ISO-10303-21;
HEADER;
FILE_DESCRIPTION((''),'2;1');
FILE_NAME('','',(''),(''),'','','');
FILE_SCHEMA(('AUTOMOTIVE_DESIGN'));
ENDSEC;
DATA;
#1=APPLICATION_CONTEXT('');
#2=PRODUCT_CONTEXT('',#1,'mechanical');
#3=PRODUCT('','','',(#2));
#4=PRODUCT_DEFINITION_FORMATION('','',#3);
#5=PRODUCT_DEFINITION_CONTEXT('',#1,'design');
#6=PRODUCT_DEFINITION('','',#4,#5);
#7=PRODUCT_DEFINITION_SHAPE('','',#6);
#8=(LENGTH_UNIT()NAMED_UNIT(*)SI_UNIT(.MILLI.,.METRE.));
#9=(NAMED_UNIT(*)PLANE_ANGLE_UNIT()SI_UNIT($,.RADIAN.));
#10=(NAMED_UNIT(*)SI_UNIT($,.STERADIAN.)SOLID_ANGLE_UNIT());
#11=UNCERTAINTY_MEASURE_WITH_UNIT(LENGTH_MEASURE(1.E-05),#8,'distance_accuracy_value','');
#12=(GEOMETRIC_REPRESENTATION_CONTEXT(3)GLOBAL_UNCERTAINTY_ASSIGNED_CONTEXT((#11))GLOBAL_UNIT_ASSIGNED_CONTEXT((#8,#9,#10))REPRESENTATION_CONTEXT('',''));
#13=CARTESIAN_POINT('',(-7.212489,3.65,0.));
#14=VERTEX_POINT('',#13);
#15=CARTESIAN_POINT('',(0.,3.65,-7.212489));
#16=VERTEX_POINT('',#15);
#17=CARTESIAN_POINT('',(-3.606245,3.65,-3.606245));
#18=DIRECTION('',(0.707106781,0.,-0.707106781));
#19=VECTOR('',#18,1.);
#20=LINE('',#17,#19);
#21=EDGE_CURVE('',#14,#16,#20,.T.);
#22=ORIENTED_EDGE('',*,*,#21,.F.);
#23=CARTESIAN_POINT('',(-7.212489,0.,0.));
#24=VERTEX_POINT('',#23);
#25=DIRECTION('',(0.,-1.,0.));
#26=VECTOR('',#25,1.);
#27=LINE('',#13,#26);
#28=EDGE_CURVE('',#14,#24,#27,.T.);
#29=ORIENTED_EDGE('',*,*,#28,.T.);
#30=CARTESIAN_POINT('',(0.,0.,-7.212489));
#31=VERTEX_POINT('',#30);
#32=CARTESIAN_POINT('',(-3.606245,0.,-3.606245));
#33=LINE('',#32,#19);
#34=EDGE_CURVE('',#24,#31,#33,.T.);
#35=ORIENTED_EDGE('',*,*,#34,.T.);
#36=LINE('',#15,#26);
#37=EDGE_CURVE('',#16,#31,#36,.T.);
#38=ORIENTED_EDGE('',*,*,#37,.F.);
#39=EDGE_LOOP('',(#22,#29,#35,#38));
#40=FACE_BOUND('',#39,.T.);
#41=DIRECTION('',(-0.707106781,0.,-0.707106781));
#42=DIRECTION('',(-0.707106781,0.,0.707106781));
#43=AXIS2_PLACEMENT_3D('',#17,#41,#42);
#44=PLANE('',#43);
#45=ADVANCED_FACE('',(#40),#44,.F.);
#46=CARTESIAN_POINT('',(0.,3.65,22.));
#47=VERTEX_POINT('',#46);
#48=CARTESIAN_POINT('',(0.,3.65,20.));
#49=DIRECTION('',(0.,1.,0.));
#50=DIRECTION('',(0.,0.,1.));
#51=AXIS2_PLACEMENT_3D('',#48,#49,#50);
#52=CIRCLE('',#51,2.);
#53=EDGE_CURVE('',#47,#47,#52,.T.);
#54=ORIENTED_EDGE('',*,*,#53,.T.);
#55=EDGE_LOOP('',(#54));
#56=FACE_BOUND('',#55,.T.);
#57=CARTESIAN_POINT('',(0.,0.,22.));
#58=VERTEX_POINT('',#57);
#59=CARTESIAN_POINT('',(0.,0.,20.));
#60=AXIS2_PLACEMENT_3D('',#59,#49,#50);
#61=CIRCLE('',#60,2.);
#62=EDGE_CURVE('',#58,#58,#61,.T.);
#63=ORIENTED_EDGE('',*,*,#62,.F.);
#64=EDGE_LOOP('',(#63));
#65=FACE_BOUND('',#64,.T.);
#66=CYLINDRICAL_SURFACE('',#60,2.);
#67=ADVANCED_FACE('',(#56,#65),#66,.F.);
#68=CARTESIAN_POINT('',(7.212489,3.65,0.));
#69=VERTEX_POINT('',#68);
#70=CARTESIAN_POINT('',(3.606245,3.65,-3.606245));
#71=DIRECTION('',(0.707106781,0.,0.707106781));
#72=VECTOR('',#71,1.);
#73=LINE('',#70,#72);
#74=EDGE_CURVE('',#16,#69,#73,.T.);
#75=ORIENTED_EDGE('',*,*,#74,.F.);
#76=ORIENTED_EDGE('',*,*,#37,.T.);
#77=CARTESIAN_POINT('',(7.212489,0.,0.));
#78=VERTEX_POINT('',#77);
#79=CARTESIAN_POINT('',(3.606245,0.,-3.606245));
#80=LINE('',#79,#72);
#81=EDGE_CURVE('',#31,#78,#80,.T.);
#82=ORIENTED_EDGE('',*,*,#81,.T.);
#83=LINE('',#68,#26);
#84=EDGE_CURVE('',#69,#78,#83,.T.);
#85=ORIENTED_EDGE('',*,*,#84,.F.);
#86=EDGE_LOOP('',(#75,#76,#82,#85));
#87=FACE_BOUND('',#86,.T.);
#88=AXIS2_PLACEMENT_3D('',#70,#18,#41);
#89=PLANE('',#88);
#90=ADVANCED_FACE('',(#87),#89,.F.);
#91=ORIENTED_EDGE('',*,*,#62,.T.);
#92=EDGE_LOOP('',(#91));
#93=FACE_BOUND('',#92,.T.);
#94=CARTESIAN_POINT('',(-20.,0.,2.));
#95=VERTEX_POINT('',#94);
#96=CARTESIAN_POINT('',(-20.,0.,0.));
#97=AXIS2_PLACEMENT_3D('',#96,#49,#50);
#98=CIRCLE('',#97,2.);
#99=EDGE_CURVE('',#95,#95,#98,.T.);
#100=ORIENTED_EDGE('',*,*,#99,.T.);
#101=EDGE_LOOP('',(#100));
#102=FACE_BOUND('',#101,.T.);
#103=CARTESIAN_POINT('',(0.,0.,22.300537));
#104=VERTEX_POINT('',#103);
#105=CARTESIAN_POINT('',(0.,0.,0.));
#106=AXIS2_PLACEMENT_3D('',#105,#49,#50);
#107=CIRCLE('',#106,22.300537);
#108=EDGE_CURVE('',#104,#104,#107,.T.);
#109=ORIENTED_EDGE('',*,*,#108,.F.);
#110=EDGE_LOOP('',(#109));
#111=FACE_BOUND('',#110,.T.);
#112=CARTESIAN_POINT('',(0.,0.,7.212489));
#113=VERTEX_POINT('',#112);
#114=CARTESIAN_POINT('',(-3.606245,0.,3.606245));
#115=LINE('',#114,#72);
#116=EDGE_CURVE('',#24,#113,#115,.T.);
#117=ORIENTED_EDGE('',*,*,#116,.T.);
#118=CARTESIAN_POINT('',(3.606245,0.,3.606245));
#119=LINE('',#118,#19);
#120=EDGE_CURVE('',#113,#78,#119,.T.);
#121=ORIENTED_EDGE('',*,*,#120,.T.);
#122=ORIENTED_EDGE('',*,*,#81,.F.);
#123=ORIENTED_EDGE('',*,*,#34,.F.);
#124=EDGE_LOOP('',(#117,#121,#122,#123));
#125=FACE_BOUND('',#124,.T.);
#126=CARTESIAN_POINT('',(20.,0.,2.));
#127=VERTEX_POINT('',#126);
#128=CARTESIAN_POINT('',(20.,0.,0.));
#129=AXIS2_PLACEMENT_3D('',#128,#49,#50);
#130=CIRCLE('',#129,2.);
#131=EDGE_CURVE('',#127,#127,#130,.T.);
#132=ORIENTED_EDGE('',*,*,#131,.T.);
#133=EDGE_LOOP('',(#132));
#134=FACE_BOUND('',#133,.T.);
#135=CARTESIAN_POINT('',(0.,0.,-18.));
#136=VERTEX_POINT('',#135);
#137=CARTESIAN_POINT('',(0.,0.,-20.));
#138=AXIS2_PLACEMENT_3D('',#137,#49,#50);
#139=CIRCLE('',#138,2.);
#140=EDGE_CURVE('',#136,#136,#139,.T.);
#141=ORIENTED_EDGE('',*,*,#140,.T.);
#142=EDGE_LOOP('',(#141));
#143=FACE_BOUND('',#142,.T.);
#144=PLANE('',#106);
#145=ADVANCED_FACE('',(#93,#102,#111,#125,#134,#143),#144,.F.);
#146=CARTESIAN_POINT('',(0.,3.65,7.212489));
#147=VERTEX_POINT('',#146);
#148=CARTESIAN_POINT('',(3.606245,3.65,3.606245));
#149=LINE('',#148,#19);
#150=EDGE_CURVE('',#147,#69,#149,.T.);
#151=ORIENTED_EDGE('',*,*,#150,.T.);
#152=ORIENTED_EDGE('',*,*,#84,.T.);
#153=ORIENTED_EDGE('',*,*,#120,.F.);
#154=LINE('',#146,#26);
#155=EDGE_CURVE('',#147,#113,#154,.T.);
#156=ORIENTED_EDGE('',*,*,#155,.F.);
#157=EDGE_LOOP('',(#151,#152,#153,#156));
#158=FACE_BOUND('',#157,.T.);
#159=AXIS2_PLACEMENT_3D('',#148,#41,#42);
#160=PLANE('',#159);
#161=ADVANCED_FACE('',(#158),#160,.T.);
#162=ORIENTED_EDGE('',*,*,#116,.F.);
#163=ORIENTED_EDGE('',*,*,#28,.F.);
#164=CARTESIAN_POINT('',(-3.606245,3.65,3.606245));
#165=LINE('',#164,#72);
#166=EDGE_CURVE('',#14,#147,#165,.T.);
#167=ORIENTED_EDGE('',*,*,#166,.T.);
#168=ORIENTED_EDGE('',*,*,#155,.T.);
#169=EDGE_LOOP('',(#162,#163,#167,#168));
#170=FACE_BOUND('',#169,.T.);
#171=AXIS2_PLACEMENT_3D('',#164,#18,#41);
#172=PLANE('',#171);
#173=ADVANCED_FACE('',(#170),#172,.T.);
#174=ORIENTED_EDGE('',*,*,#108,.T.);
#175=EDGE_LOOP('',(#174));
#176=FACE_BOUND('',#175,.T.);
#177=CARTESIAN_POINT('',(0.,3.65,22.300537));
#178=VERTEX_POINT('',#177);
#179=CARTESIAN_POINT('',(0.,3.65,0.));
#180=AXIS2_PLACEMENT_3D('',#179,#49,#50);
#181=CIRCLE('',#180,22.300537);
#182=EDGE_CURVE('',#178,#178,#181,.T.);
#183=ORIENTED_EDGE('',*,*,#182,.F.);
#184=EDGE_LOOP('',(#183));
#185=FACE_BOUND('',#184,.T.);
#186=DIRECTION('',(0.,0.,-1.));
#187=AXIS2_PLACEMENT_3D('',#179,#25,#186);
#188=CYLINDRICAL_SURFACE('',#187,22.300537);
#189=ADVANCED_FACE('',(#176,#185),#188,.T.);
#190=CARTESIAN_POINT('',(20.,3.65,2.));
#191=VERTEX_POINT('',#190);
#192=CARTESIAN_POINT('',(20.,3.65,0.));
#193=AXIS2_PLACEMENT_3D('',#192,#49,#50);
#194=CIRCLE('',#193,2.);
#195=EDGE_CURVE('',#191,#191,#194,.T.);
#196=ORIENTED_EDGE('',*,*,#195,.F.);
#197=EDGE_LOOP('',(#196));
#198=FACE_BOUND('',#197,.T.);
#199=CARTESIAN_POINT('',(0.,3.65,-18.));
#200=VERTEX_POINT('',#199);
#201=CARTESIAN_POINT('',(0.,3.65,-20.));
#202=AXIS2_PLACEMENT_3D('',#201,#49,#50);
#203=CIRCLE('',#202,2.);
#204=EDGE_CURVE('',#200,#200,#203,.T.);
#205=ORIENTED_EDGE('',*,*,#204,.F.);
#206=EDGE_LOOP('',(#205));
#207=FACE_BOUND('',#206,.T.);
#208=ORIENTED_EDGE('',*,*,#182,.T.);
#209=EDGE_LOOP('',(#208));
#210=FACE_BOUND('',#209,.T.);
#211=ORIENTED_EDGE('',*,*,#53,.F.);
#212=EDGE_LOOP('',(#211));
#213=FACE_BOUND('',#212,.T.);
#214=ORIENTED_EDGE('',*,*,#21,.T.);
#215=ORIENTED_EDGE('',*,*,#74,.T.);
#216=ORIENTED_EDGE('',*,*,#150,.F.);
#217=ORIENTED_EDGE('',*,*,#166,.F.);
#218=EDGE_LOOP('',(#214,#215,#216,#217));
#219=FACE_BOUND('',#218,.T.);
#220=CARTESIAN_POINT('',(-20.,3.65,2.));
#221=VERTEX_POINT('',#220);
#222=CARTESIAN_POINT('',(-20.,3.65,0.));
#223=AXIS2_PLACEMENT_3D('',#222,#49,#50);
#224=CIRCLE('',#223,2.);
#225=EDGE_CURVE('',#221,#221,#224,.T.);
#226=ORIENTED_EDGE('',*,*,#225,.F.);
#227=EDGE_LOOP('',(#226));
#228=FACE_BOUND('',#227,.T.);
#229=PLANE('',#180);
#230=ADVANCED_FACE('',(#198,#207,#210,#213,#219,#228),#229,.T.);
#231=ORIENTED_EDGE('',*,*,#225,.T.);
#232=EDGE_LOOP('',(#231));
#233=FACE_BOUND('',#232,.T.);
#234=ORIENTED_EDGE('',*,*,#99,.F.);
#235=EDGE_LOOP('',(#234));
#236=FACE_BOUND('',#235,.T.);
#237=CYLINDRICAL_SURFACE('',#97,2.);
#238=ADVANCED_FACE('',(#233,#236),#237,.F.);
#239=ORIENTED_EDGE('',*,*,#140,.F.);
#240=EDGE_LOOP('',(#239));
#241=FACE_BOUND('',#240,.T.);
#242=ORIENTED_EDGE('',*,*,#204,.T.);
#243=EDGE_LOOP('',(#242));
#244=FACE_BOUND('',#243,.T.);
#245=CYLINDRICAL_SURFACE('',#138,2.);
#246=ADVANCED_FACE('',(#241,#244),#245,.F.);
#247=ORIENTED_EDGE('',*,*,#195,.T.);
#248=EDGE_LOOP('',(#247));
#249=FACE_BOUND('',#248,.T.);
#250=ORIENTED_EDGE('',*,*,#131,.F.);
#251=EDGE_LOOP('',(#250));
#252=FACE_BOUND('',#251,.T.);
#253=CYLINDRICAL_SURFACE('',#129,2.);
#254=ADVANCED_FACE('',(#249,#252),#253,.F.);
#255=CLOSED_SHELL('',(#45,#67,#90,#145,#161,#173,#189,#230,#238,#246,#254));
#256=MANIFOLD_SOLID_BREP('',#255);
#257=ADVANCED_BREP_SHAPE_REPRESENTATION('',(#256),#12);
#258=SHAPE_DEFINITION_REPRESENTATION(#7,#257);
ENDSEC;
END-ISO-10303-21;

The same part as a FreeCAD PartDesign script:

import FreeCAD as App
import Part
import Sketcher


def add_polygon(sketch, points):
    """Adds a closed chain of lines whose ends are joined by coincident constraints."""
    first, n = sketch.GeometryCount, len(points)
    for a, b in zip(points, points[1:] + points[:1]):
        sketch.addGeometry(Part.LineSegment(App.Vector(*a, 0), App.Vector(*b, 0)), False)
    for i in range(n):
        sketch.addConstraint(Sketcher.Constraint("Coincident", first + i, 2, first + (i + 1) % n, 1))

doc = App.newDocument("Part")
body = doc.addObject("PartDesign::Body", "Body")

# Sketch on XZ plane
sketch1 = body.newObject("Sketcher::SketchObject", "Sketch")
sketch1.AttachmentSupport = (doc.getObject("XZ_Plane"), [""])
sketch1.MapMode = "FlatFace"
sketch1.addGeometry(Part.Circle(App.Vector(0, 0, 0), App.Vector(0, 0, 1), 22), False)  # 0
add_polygon(sketch1, [(0, 7), (-7, 0), (0, -7), (7, 0)])  # lines 1-4
sketch1.addConstraint([
    Sketcher.Constraint("Coincident", 0, 3, -1, 1),
    Sketcher.Constraint("Symmetric", 1, 2, 3, 2, -1, 1),
    Sketcher.Constraint("Symmetric", 2, 2, 4, 2, -1, 1),
    Sketcher.Constraint("PointOnObject", 1, 2, -1),
    Sketcher.Constraint("PointOnObject", 2, 2, -2),
    Sketcher.Constraint("Perpendicular", 1, 2),
    Sketcher.Constraint("Distance", 1, 10.2),
    Sketcher.Constraint("Diameter", 0, 44.601073),
])
pad1 = body.newObject("PartDesign::Pad", "Pad")
pad1.Profile = sketch1
pad1.Length = 3.65
pad1.Reversed = True

# Sketch on XZ plane
sketch2 = body.newObject("Sketcher::SketchObject", "Sketch001")
sketch2.AttachmentSupport = (doc.getObject("XZ_Plane"), [""])
sketch2.MapMode = "FlatFace"
sketch2.AttachmentOffset = App.Placement(App.Vector(0, 0, -3.65), App.Rotation())
sketch2.addGeometry([
    Part.Circle(App.Vector(0, -20, 0), App.Vector(0, 0, 1), 2),
    Part.Circle(App.Vector(20, 0, 0), App.Vector(0, 0, 1), 2),
    Part.Circle(App.Vector(0, 20, 0), App.Vector(0, 0, 1), 2),
    Part.Circle(App.Vector(-20, 0, 0), App.Vector(0, 0, 1), 2),
], False)
sketch2.addConstraint([
    Sketcher.Constraint("Equal", 0, 1),
    Sketcher.Constraint("Equal", 1, 2),
    Sketcher.Constraint("Equal", 2, 3),
    Sketcher.Constraint("Symmetric", 0, 3, 2, 3, -1, 1),
    Sketcher.Constraint("Symmetric", 1, 3, 3, 3, -1, 1),
    Sketcher.Constraint("PointOnObject", 0, 3, -2),
    Sketcher.Constraint("PointOnObject", 1, 3, -1),
    Sketcher.Constraint("Diameter", 0, 4.0),
    Sketcher.Constraint("DistanceY", 0, 3, -1, 1, 20.0),
    Sketcher.Constraint("DistanceX", -1, 1, 1, 3, 20.0),
])
pocket1 = body.newObject("PartDesign::Pocket", "Pocket")
pocket1.Profile = sketch2
pocket1.Type = "ThroughAll"
pocket1.Reversed = True

doc.recompute()
